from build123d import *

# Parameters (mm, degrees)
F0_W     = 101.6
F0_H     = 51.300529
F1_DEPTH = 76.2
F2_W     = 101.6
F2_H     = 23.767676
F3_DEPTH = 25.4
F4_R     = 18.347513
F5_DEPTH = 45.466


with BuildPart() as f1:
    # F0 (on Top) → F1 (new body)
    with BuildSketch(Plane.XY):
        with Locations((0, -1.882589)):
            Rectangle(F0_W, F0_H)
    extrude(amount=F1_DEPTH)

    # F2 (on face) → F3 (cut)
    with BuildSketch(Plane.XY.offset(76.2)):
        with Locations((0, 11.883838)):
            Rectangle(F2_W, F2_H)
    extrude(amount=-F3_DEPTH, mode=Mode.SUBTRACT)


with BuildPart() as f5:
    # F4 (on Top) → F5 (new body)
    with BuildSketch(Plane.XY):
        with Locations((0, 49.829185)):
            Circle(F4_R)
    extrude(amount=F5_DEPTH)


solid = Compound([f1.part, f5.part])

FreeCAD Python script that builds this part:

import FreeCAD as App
import Part
import Sketcher
Q = App.Units.Quantity

doc = App.newDocument("Part")
params = doc.addObject("Spreadsheet::Sheet", "Params")
for row, (alias, value) in enumerate([
    ("sketch1_width", "4 in"),
    ("pad1_length", "3 in"),
    ("sketch2_width", "4 in"),
    ("pocket1_length", "1 in"),
    ("pad2_length", "1.79 in"),
], start=1):
    params.set(f"A{row}", alias)
    params.set(f"B{row}", "=" + value)
    params.setAlias(f"B{row}", alias)

body = doc.addObject("PartDesign::Body", "Body")

# Sketch on XY plane
sketch1 = body.newObject("Sketcher::SketchObject", "Sketch")
sketch1.AttachmentSupport = (doc.getObject("XY_Plane"), [""])
sketch1.MapMode = "FlatFace"
sketch1.addGeometry(Part.LineSegment(App.Vector(-51, 24, 0), App.Vector(-51, -28, 0)), False)
sketch1.addGeometry(Part.LineSegment(App.Vector(-51, -28, 0), App.Vector(51, -28, 0)), False)
sketch1.addGeometry(Part.LineSegment(App.Vector(51, -28, 0), App.Vector(51, 24, 0)), False)
sketch1.addGeometry(Part.LineSegment(App.Vector(51, 24, 0), App.Vector(-51, 24, 0)), False)
sketch1.addConstraint(Sketcher.Constraint("Coincident", 0, 2, 1, 1))
sketch1.addConstraint(Sketcher.Constraint("Coincident", 1, 2, 2, 1))
sketch1.addConstraint(Sketcher.Constraint("Coincident", 2, 2, 3, 1))
sketch1.addConstraint(Sketcher.Constraint("Coincident", 3, 2, 0, 1))
sketch1.addConstraint(Sketcher.Constraint("Vertical", 0))
sketch1.addConstraint(Sketcher.Constraint("Horizontal", 1))
sketch1.addConstraint(Sketcher.Constraint("Vertical", 2))
sketch1.addConstraint(Sketcher.Constraint("Horizontal", 3))
sketch1.addConstraint(Sketcher.Constraint("DistanceX", 1, 1, 1, 2, Q("4 in")))
sketch1.addConstraint(Sketcher.Constraint("DistanceX", 0, 2, -1, 1, Q("2 in")))
sketch1.addConstraint(Sketcher.Constraint("DistanceY", 0, 2, 0, 1, Q("51.300529 mm")))
sketch1.addConstraint(Sketcher.Constraint("DistanceY", 0, 2, -1, 1, Q("27.532854 mm")))
sketch1.setExpression("Constraints[8]", "Params.sketch1_width")
pad1 = body.newObject("PartDesign::Pad", "Pad")
pad1.Profile = sketch1
pad1.setExpression("Length", "Params.pad1_length")

# Sketch on XY plane
sketch2 = body.newObject("Sketcher::SketchObject", "Sketch001")
sketch2.AttachmentSupport = (doc.getObject("XY_Plane"), [""])
sketch2.MapMode = "FlatFace"
sketch2.AttachmentOffset = App.Placement(App.Vector(0, 0, 3 * 25.4), App.Rotation())
sketch2.addGeometry(Part.LineSegment(App.Vector(-51, 24, 0), App.Vector(-51, 0, 0)), False)
sketch2.addGeometry(Part.LineSegment(App.Vector(-51, 0, 0), App.Vector(51, 0, 0)), False)
sketch2.addGeometry(Part.LineSegment(App.Vector(51, 0, 0), App.Vector(51, 24, 0)), False)
sketch2.addGeometry(Part.LineSegment(App.Vector(51, 24, 0), App.Vector(-51, 24, 0)), False)
sketch2.addConstraint(Sketcher.Constraint("Coincident", 0, 2, 1, 1))
sketch2.addConstraint(Sketcher.Constraint("Coincident", 1, 2, 2, 1))
sketch2.addConstraint(Sketcher.Constraint("Coincident", 2, 2, 3, 1))
sketch2.addConstraint(Sketcher.Constraint("Coincident", 3, 2, 0, 1))
sketch2.addConstraint(Sketcher.Constraint("Vertical", 0))
sketch2.addConstraint(Sketcher.Constraint("Horizontal", 1))
sketch2.addConstraint(Sketcher.Constraint("Vertical", 2))
sketch2.addConstraint(Sketcher.Constraint("Horizontal", 3))
sketch2.addConstraint(Sketcher.Constraint("Symmetric", 0, 2, 1, 2, -1, 1))
sketch2.addConstraint(Sketcher.Constraint("DistanceX", 1, 1, 1, 2, Q("4 in")))
sketch2.addConstraint(Sketcher.Constraint("DistanceY", 0, 2, 0, 1, Q("23.767676 mm")))
sketch2.setExpression("Constraints[9]", "Params.sketch2_width")
pocket1 = body.newObject("PartDesign::Pocket", "Pocket")
pocket1.Profile = sketch2
pocket1.setExpression("Length", "Params.pocket1_length")
body2 = doc.addObject("PartDesign::Body", "Body001")

# Sketch on XY plane
sketch3 = body2.newObject("Sketcher::SketchObject", "Sketch002")
sketch3.AttachmentSupport = (doc.getObject("XY_Plane001"), [""])
sketch3.MapMode = "FlatFace"
sketch3.addGeometry(Part.Circle(App.Vector(0, 50, 0), App.Vector(0, 0, 1), 18), False)
sketch3.addConstraint(Sketcher.Constraint("PointOnObject", 0, 3, -2))
sketch3.addConstraint(Sketcher.Constraint("Diameter", 0, Q("36.695026 mm")))
sketch3.addConstraint(Sketcher.Constraint("DistanceY", -1, 1, 0, 3, Q("49.829185 mm")))
pad2 = body2.newObject("PartDesign::Pad", "Pad001")
pad2.Profile = sketch3
pad2.setExpression("Length", "Params.pad2_length")

doc.recompute()
